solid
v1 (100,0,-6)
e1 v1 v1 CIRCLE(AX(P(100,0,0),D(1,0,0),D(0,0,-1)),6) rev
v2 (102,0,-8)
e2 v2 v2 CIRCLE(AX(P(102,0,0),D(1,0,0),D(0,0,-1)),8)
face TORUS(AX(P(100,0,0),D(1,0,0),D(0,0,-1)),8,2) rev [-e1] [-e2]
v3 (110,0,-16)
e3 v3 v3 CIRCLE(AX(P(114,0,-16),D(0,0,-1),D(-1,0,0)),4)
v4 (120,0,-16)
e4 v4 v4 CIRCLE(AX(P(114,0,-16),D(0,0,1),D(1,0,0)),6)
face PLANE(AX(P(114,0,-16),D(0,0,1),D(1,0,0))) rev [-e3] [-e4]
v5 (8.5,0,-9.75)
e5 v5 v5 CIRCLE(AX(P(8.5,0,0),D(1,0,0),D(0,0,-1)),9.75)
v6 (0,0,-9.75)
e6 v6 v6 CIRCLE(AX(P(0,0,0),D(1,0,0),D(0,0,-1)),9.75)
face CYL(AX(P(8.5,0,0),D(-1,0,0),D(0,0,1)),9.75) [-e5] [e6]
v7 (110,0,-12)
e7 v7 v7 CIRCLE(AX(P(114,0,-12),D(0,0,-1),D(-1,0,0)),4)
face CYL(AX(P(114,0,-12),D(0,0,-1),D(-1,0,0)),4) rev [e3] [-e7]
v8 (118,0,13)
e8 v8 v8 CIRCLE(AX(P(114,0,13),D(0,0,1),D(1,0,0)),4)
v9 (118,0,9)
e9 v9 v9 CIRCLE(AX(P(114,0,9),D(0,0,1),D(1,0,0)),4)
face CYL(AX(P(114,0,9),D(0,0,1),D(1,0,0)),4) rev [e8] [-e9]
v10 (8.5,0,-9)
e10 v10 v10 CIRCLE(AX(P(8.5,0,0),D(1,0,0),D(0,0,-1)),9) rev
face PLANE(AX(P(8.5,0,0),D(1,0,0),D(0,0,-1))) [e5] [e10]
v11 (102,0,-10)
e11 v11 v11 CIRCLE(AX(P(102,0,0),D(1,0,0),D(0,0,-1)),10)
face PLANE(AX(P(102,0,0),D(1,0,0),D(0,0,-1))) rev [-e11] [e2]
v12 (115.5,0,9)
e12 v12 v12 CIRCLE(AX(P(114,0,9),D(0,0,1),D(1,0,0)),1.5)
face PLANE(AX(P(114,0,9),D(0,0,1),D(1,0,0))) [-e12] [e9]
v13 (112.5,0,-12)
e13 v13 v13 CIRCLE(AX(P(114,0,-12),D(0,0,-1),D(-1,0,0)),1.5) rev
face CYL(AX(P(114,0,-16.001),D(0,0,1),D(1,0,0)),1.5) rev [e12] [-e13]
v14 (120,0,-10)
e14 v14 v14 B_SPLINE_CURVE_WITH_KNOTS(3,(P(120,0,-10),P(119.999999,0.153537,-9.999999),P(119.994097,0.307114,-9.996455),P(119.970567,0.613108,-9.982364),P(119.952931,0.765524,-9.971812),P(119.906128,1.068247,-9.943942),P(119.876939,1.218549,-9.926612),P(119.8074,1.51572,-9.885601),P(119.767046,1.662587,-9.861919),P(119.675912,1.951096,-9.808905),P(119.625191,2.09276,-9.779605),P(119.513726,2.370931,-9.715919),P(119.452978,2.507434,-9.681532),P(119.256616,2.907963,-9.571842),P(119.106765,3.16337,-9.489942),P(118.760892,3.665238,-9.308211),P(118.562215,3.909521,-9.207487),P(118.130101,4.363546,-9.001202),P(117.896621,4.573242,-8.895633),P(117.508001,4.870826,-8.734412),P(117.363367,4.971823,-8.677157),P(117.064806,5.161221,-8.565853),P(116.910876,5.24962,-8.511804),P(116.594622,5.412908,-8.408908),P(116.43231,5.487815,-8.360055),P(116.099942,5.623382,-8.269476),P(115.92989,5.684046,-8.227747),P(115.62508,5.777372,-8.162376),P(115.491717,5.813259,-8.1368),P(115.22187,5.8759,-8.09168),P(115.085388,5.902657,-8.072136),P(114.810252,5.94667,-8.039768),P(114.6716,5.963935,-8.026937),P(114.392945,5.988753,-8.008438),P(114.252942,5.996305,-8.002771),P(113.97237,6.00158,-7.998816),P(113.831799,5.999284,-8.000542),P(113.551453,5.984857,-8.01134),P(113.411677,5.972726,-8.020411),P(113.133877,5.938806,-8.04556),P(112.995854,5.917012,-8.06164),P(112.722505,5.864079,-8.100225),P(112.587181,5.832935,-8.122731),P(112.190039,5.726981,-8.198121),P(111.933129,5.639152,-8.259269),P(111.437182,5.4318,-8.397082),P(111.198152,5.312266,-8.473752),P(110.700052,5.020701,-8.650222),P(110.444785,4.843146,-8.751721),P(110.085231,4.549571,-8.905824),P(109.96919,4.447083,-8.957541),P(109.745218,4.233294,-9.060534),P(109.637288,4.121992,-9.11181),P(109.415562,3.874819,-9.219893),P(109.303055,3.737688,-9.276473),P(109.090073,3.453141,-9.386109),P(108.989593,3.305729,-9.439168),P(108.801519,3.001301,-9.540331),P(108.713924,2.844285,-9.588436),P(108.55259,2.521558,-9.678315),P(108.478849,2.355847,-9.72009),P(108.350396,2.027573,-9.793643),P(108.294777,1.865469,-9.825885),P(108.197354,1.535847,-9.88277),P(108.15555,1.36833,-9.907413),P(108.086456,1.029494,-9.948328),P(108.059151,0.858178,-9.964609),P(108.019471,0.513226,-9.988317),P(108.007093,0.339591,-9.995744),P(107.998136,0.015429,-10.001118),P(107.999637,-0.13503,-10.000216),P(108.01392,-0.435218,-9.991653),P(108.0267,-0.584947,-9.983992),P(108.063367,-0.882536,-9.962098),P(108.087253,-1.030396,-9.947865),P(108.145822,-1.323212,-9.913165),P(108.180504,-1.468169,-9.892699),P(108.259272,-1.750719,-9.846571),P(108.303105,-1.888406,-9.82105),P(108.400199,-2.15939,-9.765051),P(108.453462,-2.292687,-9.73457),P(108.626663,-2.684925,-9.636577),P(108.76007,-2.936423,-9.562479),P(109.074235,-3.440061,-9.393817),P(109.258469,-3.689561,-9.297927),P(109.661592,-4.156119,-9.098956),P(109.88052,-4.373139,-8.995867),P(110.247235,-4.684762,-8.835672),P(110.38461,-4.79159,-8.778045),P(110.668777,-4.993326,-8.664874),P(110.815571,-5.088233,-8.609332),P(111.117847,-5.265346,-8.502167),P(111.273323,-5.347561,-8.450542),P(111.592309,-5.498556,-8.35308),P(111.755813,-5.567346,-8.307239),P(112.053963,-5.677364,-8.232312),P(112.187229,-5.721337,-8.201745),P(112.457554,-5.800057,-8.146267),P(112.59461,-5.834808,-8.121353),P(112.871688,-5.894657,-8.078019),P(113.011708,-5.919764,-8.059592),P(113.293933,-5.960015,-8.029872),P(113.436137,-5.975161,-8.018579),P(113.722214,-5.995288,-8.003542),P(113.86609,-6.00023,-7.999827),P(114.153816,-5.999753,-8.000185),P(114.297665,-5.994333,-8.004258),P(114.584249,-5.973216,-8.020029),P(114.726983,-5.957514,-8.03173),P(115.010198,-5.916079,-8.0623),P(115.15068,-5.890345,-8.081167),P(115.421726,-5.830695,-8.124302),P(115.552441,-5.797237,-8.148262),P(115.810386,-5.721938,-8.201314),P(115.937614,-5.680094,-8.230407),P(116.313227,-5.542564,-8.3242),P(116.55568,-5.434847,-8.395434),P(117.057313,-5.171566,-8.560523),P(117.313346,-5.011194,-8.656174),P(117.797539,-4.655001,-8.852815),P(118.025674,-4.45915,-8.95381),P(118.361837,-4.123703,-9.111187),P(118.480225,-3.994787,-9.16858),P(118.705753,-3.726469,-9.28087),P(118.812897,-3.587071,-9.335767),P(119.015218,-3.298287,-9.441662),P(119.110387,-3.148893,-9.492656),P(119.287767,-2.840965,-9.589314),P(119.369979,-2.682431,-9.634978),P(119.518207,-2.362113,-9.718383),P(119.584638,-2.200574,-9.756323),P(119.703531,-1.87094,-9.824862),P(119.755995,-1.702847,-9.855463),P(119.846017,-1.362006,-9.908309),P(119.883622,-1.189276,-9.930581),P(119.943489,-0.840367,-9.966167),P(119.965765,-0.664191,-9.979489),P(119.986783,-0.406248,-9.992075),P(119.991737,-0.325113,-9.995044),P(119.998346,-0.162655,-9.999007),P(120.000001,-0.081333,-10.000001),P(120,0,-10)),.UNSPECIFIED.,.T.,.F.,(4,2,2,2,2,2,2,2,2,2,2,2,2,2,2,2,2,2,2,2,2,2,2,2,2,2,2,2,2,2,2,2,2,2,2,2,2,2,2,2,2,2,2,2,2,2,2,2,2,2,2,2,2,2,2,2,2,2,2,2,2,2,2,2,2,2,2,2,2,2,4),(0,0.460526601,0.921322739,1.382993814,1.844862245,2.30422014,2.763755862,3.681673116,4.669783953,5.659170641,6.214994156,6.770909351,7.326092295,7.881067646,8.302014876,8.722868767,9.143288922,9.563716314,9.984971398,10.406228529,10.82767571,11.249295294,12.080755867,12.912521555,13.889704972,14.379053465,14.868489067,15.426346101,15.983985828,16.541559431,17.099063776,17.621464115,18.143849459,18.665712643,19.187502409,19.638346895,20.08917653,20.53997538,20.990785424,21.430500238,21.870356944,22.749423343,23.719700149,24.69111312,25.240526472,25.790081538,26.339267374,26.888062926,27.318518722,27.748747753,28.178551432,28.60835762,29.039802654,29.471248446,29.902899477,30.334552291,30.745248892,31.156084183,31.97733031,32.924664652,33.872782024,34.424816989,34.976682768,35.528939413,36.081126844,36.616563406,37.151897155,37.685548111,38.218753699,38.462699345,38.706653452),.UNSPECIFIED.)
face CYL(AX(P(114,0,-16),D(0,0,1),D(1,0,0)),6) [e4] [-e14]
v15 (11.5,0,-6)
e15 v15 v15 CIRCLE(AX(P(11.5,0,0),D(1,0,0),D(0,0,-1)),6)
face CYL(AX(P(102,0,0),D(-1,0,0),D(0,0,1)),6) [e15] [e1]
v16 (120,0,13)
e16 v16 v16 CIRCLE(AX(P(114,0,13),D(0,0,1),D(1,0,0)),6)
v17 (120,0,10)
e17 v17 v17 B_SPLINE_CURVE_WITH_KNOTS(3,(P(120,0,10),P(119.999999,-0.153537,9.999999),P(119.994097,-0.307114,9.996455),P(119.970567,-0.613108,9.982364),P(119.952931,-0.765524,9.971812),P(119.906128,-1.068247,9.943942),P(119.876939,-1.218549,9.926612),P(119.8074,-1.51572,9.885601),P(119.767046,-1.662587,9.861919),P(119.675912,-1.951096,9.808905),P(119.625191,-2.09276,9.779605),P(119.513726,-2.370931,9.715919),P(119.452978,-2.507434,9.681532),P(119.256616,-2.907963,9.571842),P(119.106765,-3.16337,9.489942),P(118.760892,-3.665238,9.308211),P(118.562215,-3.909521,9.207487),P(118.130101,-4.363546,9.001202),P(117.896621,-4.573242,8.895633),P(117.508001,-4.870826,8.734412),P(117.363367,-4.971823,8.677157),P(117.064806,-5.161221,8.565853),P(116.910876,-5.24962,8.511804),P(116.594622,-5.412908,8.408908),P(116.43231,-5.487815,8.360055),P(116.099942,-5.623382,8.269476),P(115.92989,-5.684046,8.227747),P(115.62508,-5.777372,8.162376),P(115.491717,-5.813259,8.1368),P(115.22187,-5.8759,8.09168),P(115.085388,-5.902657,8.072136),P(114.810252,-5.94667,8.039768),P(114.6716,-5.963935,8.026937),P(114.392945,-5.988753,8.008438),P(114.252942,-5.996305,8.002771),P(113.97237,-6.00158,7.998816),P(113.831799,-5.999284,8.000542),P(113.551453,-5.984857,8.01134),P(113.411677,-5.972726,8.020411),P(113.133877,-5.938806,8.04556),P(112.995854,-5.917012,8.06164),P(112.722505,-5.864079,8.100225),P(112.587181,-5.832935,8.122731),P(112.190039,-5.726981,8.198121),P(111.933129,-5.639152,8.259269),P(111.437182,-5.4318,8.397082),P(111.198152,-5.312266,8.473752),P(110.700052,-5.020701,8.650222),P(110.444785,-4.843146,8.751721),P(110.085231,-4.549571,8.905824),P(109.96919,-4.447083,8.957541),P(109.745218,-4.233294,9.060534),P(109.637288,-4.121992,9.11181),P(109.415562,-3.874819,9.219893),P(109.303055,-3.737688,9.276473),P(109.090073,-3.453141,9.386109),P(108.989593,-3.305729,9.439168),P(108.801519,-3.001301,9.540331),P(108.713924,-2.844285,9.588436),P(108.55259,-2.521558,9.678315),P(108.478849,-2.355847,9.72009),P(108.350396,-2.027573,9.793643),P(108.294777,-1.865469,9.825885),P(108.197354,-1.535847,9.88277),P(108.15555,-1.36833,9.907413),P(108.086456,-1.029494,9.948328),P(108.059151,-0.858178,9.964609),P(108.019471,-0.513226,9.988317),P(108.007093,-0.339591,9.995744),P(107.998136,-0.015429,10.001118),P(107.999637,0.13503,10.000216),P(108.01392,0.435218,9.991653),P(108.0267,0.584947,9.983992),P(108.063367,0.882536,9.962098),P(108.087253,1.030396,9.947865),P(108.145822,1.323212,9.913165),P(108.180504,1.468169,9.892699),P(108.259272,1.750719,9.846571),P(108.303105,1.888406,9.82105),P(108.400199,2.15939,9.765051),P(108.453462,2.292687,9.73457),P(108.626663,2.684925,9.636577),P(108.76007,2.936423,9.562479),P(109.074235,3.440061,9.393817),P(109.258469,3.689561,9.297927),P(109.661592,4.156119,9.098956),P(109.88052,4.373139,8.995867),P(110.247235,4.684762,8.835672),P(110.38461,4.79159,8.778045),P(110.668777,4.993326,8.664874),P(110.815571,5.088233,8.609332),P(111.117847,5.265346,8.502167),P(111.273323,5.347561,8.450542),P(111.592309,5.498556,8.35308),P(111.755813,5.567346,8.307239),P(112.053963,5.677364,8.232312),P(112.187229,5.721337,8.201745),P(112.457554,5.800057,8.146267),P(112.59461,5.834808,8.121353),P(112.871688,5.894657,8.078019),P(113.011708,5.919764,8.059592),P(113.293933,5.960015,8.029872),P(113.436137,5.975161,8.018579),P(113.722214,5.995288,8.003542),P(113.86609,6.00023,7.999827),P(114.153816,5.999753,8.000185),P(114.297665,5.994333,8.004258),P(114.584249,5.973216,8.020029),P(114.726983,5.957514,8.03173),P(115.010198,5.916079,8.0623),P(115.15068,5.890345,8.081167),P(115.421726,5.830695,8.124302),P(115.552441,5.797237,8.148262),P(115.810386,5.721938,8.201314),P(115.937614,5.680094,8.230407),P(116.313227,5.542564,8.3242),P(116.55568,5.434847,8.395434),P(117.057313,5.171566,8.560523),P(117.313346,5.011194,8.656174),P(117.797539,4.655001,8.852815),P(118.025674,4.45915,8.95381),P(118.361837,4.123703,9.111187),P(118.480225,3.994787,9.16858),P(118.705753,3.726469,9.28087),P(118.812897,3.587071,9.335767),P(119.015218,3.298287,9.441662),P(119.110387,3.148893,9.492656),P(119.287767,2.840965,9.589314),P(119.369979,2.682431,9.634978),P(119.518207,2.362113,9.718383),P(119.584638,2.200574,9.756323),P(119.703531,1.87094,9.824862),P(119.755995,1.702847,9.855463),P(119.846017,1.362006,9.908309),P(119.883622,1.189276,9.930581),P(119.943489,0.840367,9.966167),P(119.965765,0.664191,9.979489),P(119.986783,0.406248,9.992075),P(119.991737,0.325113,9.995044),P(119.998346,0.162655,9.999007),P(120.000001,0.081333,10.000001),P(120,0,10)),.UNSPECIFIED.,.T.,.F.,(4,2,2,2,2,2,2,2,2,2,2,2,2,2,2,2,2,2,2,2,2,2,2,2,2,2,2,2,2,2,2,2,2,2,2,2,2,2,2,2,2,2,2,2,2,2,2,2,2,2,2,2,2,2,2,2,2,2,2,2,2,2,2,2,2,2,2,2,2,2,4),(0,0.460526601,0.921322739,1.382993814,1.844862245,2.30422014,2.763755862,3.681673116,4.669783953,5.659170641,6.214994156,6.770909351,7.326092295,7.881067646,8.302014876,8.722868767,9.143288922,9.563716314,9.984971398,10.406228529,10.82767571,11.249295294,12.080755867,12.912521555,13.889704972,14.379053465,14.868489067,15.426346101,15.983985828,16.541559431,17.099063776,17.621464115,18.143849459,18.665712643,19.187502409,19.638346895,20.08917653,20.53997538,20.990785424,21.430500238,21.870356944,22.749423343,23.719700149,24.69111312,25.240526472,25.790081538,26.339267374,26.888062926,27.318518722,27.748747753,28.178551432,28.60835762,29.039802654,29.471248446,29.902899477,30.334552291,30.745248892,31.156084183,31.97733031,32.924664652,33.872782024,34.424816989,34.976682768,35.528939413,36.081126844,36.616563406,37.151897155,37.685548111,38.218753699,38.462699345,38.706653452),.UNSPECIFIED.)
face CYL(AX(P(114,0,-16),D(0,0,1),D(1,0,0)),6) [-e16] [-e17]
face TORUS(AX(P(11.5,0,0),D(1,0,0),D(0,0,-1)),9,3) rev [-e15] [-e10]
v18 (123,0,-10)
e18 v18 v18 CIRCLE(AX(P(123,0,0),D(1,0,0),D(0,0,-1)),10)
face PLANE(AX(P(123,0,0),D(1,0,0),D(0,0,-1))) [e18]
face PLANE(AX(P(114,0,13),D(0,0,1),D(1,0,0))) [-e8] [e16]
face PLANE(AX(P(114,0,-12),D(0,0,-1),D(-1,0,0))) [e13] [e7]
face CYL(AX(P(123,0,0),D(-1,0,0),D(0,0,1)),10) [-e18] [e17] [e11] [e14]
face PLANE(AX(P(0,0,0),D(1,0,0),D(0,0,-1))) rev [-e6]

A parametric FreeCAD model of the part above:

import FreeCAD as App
import Part
import Sketcher
Q = App.Units.Quantity


def edges_at(feature, points):
    """Names of the edges that pass closest to the given points."""
    edges = feature.Shape.Edges
    near = lambda p: min(range(len(edges)), key=lambda i: edges[i].distToShape(Part.Vertex(*p))[0])
    return sorted({f"Edge{near(p) + 1}" for p in points})

doc = App.newDocument("Part")
body = doc.addObject("PartDesign::Body", "Body")

# Sketch on YZ plane
sketch1 = body.newObject("Sketcher::SketchObject", "Sketch")
sketch1.AttachmentSupport = (doc.getObject("YZ_Plane"), [""])
sketch1.MapMode = "FlatFace"
sketch1.addGeometry(Part.Circle(App.Vector(0, 0, 0), App.Vector(0, 0, 1), 10), False)
sketch1.addConstraint([
    Sketcher.Constraint("Coincident", 0, 3, -1, 1),
    Sketcher.Constraint("Diameter", 0, Q("19.5 mm")),
])
pad1 = body.newObject("PartDesign::Pad", "Pad")
pad1.Profile = sketch1
pad1.Length = 8.5

# Sketch on YZ plane
sketch2 = body.newObject("Sketcher::SketchObject", "Sketch001")
sketch2.AttachmentSupport = (doc.getObject("YZ_Plane"), [""])
sketch2.MapMode = "FlatFace"
sketch2.AttachmentOffset = App.Placement(App.Vector(0, 0, 8.5), App.Rotation())
sketch2.addGeometry(Part.Circle(App.Vector(0, 0, 0), App.Vector(0, 0, 1), 6), False)
sketch2.addConstraint([
    Sketcher.Constraint("Coincident", 0, 3, -1, 1),
    Sketcher.Constraint("Diameter", 0, Q("12 mm")),
])
pad2 = body.newObject("PartDesign::Pad", "Pad001")
pad2.Profile = sketch2
pad2.Length = 93.5
doc.recompute()

fillet = body.newObject("PartDesign::Fillet", "Fillet")
fillet.Base = (pad2, edges_at(pad2, [(8.5, 0, 6)]))
fillet.Radius = 3

# Sketch on YZ plane
sketch3 = body.newObject("Sketcher::SketchObject", "Sketch002")
sketch3.AttachmentSupport = (doc.getObject("YZ_Plane"), [""])
sketch3.MapMode = "FlatFace"
sketch3.AttachmentOffset = App.Placement(App.Vector(0, 0, 102), App.Rotation())
sketch3.addGeometry(Part.Circle(App.Vector(0, 0, 0), App.Vector(0, 0, 1), 10), False)
sketch3.addConstraint([
    Sketcher.Constraint("Coincident", 0, 3, -1, 1),
    Sketcher.Constraint("Diameter", 0, Q("20 mm")),
])
pad3 = body.newObject("PartDesign::Pad", "Pad002")
pad3.Profile = sketch3
pad3.Length = 21
doc.recompute()

fillet2 = body.newObject("PartDesign::Fillet", "Fillet001")
fillet2.Base = (pad3, edges_at(pad3, [(102, 0, 6)]))
fillet2.Radius = 2

# Sketch on XY plane
sketch4 = body.newObject("Sketcher::SketchObject", "Sketch003")
sketch4.AttachmentSupport = (doc.getObject("XY_Plane"), [""])
sketch4.MapMode = "FlatFace"
sketch4.addGeometry(Part.Circle(App.Vector(114, 0, 0), App.Vector(0, 0, 1), 6), False)
sketch4.addConstraint([
    Sketcher.Constraint("PointOnObject", 0, 3, -1),
    Sketcher.Constraint("Diameter", 0, Q("12 mm")),
    Sketcher.Constraint("DistanceX", -1, 1, 0, 3, Q("114 mm")),
])
pad4 = body.newObject("PartDesign::Pad", "Pad003")
pad4.Profile = sketch4
pad4.Type = "TwoLengths"
pad4.Length = 13
pad4.Length2 = 16

# Sketch on XY plane
sketch5 = body.newObject("Sketcher::SketchObject", "Sketch004")
sketch5.AttachmentSupport = (doc.getObject("XY_Plane"), [""])
sketch5.MapMode = "FlatFace"
sketch5.AttachmentOffset = App.Placement(App.Vector(0, 0, 13), App.Rotation())
sketch5.addGeometry(Part.Circle(App.Vector(114, 0, 0), App.Vector(0, 0, 1), 4), False)
sketch5.addConstraint([
    Sketcher.Constraint("PointOnObject", 0, 3, -1),
    Sketcher.Constraint("Diameter", 0, Q("8 mm")),
    Sketcher.Constraint("DistanceX", -1, 1, 0, 3, Q("114 mm")),
])
pocket1 = body.newObject("PartDesign::Pocket", "Pocket")
pocket1.Profile = sketch5
pocket1.Length = 4

# Sketch on XY plane
sketch6 = body.newObject("Sketcher::SketchObject", "Sketch005")
sketch6.AttachmentSupport = (doc.getObject("XY_Plane"), [""])
sketch6.MapMode = "FlatFace"
sketch6.AttachmentOffset = App.Placement(App.Vector(0, 0, 9), App.Rotation())
sketch6.addGeometry(Part.Circle(App.Vector(114, 0, 0), App.Vector(0, 0, 1), 1.5), False)
sketch6.addConstraint([
    Sketcher.Constraint("PointOnObject", 0, 3, -1),
    Sketcher.Constraint("Diameter", 0, Q("3 mm")),
    Sketcher.Constraint("DistanceX", -1, 1, 0, 3, Q("114 mm")),
])
pocket2 = body.newObject("PartDesign::Pocket", "Pocket001")
pocket2.Profile = sketch6
pocket2.Type = "UpToFirst"

# Sketch on XY plane
sketch7 = body.newObject("Sketcher::SketchObject", "Sketch006")
sketch7.AttachmentSupport = (doc.getObject("XY_Plane"), [""])
sketch7.MapMode = "FlatFace"
sketch7.AttachmentOffset = App.Placement(App.Vector(0, 0, -16), App.Rotation())
sketch7.addGeometry(Part.Circle(App.Vector(114, 0, 0), App.Vector(0, 0, 1), 4), False)
sketch7.addConstraint([
    Sketcher.Constraint("PointOnObject", 0, 3, -1),
    Sketcher.Constraint("Diameter", 0, Q("8 mm")),
    Sketcher.Constraint("DistanceX", -1, 1, 0, 3, Q("114 mm")),
])
pocket3 = body.newObject("PartDesign::Pocket", "Pocket002")
pocket3.Profile = sketch7
pocket3.Length = 4
pocket3.Reversed = True

doc.recompute()
